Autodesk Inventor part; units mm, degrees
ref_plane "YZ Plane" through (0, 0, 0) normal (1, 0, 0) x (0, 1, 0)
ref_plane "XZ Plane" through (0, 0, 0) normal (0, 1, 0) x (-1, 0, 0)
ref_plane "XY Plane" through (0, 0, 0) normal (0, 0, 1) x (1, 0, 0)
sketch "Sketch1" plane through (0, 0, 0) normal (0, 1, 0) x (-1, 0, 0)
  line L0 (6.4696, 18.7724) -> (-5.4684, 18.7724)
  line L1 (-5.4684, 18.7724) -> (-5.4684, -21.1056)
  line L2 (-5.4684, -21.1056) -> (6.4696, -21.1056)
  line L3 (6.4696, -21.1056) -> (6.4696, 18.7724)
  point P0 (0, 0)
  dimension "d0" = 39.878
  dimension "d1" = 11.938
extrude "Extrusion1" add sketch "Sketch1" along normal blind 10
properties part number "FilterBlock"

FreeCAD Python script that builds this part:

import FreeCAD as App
import Part
import Sketcher

V = App.Vector
Q = App.Units.Quantity

doc = App.newDocument("Part")
body = doc.addObject("PartDesign::Body", "Body")

sketch1 = body.newObject("Sketcher::SketchObject", "Sketch")
sketch1.AttachmentSupport = (doc.getObject("XZ_Plane"), [""])
sketch1.MapMode = "FlatFace"
sketch1.addGeometry(Part.LineSegment(V(-6, -21, 0), V(-6, 19, 0)), False)
sketch1.addGeometry(Part.LineSegment(V(-6, 19, 0), V(5, 19, 0)), False)
sketch1.addGeometry(Part.LineSegment(V(5, 19, 0), V(5, -21, 0)), False)
sketch1.addGeometry(Part.LineSegment(V(5, -21, 0), V(-6, -21, 0)), False)
sketch1.addConstraint(Sketcher.Constraint("Coincident", 0, 2, 1, 1))
sketch1.addConstraint(Sketcher.Constraint("Coincident", 1, 2, 2, 1))
sketch1.addConstraint(Sketcher.Constraint("Coincident", 2, 2, 3, 1))
sketch1.addConstraint(Sketcher.Constraint("Coincident", 3, 2, 0, 1))
sketch1.addConstraint(Sketcher.Constraint("Vertical", 0))
sketch1.addConstraint(Sketcher.Constraint("Horizontal", 1))
sketch1.addConstraint(Sketcher.Constraint("Vertical", 2))
sketch1.addConstraint(Sketcher.Constraint("Horizontal", 3))
sketch1.addConstraint(Sketcher.Constraint("DistanceX", 1, 1, 1, 2, Q("0.47 in")))
sketch1.addConstraint(Sketcher.Constraint("DistanceY", 0, 1, 0, 2, Q("1.57 in")))
sketch1.addConstraint(Sketcher.Constraint("DistanceX", 0, 2, -1, 1, Q("0.2547 in")))
sketch1.addConstraint(Sketcher.Constraint("DistanceY", -1, 1, 0, 2, Q("18.7724 mm")))
pad1 = body.newObject("PartDesign::Pad", "Pad")
pad1.Profile = sketch1
pad1.Length = Q("0.3937008 in")
pad1.Reversed = True

doc.recompute()
